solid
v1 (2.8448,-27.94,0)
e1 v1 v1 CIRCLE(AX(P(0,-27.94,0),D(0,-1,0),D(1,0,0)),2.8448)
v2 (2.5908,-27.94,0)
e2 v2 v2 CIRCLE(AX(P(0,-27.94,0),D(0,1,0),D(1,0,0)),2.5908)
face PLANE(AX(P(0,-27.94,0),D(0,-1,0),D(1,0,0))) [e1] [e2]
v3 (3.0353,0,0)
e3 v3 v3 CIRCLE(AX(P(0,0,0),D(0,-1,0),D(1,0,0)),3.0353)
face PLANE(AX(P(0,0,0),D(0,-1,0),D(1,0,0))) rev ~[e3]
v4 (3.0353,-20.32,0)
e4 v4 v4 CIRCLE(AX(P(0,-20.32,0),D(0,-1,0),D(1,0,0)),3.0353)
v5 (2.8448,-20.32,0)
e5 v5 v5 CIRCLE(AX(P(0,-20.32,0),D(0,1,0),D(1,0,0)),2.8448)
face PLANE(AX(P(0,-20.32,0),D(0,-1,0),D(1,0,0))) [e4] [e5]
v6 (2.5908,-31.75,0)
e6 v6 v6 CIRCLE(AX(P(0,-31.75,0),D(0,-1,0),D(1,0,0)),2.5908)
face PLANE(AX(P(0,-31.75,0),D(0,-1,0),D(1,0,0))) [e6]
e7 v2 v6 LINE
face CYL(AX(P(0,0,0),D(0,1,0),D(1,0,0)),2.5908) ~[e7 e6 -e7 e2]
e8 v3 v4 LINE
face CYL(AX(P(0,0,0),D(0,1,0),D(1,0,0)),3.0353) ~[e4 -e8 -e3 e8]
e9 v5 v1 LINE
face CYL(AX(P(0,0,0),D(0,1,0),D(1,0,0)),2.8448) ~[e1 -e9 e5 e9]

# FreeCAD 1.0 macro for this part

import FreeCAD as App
import Part
import Sketcher
Q = App.Units.Quantity

doc = App.newDocument("Part")
body = doc.addObject("PartDesign::Body", "Body")

# Sketch on XZ plane
sketch1 = body.newObject("Sketcher::SketchObject", "Sketch")
sketch1.AttachmentSupport = (doc.getObject("XZ_Plane"), [""])
sketch1.MapMode = "FlatFace"
sketch1.addGeometry(Part.Circle(App.Vector(0, 0, 0), App.Vector(0, 0, 1), 2.6), False)
sketch1.addConstraint(Sketcher.Constraint("Coincident", 0, 3, -1, 1))
sketch1.addConstraint(Sketcher.Constraint("Diameter", 0, Q("0.204 in")))
pad1 = body.newObject("PartDesign::Pad", "Pad")
pad1.Profile = sketch1
pad1.Length = Q("1.25 in")

# Sketch on XZ plane
sketch2 = body.newObject("Sketcher::SketchObject", "Sketch001")
sketch2.AttachmentSupport = (doc.getObject("XZ_Plane"), [""])
sketch2.MapMode = "FlatFace"
sketch2.addGeometry(Part.Circle(App.Vector(0, 0, 0), App.Vector(0, 0, 1), 2.8), False)
sketch2.addConstraint(Sketcher.Constraint("Coincident", 0, 3, -1, 1))
sketch2.addConstraint(Sketcher.Constraint("Diameter", 0, Q("0.224 in")))
pad2 = body.newObject("PartDesign::Pad", "Pad001")
pad2.Profile = sketch2
pad2.Length = Q("1.1 in")

# Sketch on XZ plane
sketch3 = body.newObject("Sketcher::SketchObject", "Sketch002")
sketch3.AttachmentSupport = (doc.getObject("XZ_Plane"), [""])
sketch3.MapMode = "FlatFace"
sketch3.addGeometry(Part.Circle(App.Vector(0, 0, 0), App.Vector(0, 0, 1), 3), False)
sketch3.addConstraint(Sketcher.Constraint("Coincident", 0, 3, -1, 1))
sketch3.addConstraint(Sketcher.Constraint("Diameter", 0, Q("0.239 in")))
pad3 = body.newObject("PartDesign::Pad", "Pad002")
pad3.Profile = sketch3
pad3.Length = Q("0.8 in")

doc.recompute()
